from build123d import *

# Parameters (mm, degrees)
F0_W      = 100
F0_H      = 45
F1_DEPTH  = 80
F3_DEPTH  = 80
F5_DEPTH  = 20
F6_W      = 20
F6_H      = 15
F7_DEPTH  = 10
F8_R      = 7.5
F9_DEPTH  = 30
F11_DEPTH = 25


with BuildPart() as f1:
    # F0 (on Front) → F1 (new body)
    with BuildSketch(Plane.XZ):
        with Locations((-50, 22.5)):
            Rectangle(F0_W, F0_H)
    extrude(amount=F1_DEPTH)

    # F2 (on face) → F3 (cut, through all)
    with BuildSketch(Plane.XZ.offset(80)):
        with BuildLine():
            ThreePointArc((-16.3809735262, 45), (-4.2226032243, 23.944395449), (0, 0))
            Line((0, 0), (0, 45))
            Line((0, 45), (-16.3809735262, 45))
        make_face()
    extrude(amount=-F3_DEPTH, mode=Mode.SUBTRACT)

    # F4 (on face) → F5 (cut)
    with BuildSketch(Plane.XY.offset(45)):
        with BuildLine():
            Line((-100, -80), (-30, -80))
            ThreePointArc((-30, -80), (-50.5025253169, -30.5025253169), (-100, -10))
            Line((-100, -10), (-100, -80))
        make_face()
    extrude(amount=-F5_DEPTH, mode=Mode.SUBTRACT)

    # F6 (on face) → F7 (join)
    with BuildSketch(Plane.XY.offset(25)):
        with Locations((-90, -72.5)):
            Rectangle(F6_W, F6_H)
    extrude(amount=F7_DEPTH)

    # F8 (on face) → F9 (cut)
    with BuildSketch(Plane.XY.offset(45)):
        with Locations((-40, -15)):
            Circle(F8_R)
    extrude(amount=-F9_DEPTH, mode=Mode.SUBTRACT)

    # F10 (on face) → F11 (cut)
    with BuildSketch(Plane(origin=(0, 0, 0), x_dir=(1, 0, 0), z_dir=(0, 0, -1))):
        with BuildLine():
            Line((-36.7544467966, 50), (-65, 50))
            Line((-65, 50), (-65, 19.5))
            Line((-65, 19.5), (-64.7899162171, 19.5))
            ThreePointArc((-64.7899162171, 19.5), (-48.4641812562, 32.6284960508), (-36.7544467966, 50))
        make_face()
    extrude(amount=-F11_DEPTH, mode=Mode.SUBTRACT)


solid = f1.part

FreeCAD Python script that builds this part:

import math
import FreeCAD as App
import Part
import Sketcher
from FreeCAD import Vector

doc = App.newDocument("Part")
params = doc.addObject("Spreadsheet::Sheet", "Params")
for row, (alias, value) in enumerate([
    ("sketch1_width", "100 mm"),
    ("sketch1_height", "45 mm"),
    ("pad1_length", "80 mm"),
    ("sketch2_radius", "70 mm"),
    ("sketch2_height", "45 mm"),
    ("sketch3_radius", "70 mm"),
    ("pocket2_length", "20 mm"),
    ("sketch4_width", "20 mm"),
    ("sketch4_height", "15 mm"),
    ("pad2_length", "10 mm"),
    ("sketch5_diameter", "15 mm"),
    ("pocket3_length", "30 mm"),
    ("sketch6_radius", "70 mm"),
    ("sketch6_height", "30.5 mm"),
    ("pocket4_length", "25 mm"),
], start=1):
    params.set(f"A{row}", alias)
    params.set(f"B{row}", "=" + value)
    params.setAlias(f"B{row}", alias)

body = doc.addObject("PartDesign::Body", "Body")

sketch1 = body.newObject("Sketcher::SketchObject", "Sketch")
sketch1.AttachmentSupport = (doc.getObject("XZ_Plane"), [""])
sketch1.MapMode = "FlatFace"
sketch1.addGeometry(Part.LineSegment(Vector(-100, 45, 0), Vector(-100, 0, 0)), False)
sketch1.addGeometry(Part.LineSegment(Vector(-100, 0, 0), Vector(0, 0, 0)), False)
sketch1.addGeometry(Part.LineSegment(Vector(0, 0, 0), Vector(0, 45, 0)), False)
sketch1.addGeometry(Part.LineSegment(Vector(0, 45, 0), Vector(-100, 45, 0)), False)
sketch1.addConstraint(Sketcher.Constraint("Coincident", 0, 2, 1, 1))
sketch1.addConstraint(Sketcher.Constraint("Coincident", 1, 2, 2, 1))
sketch1.addConstraint(Sketcher.Constraint("Coincident", 2, 2, 3, 1))
sketch1.addConstraint(Sketcher.Constraint("Coincident", 3, 2, 0, 1))
sketch1.addConstraint(Sketcher.Constraint("Vertical", 0))
sketch1.addConstraint(Sketcher.Constraint("Horizontal", 1))
sketch1.addConstraint(Sketcher.Constraint("Vertical", 2))
sketch1.addConstraint(Sketcher.Constraint("Horizontal", 3))
sketch1.addConstraint(Sketcher.Constraint("Coincident", 1, 2, -1, 1))
sketch1.addConstraint(Sketcher.Constraint("DistanceX", 1, 1, 1, 2, 100.0))
sketch1.addConstraint(Sketcher.Constraint("DistanceY", 0, 2, 0, 1, 45.0))
sketch1.setExpression("Constraints[9]", "Params.sketch1_width")
sketch1.setExpression("Constraints[10]", "Params.sketch1_height")
pad1 = body.newObject("PartDesign::Pad", "Pad")
pad1.Profile = sketch1
pad1.setExpression("Length", "Params.pad1_length")

sketch2 = body.newObject("Sketcher::SketchObject", "Sketch001")
sketch2.AttachmentSupport = (doc.getObject("XZ_Plane"), [""])
sketch2.MapMode = "FlatFace"
sketch2.AttachmentOffset = App.Placement(Vector(0, 0, 80), App.Rotation())
sketch2.addGeometry(Part.ArcOfCircle(Part.Circle(Vector(-70, 0, 0), Vector(0, 0, 1), 70), math.radians(0), math.radians(40)), False)
sketch2.addGeometry(Part.LineSegment(Vector(0, 0, 0), Vector(0, 45, 0)), False)
sketch2.addGeometry(Part.LineSegment(Vector(0, 45, 0), Vector(-16, 45, 0)), False)
sketch2.addConstraint(Sketcher.Constraint("Tangent", 0, 1, 1, 1))
sketch2.addConstraint(Sketcher.Constraint("Coincident", 1, 2, 2, 1))
sketch2.addConstraint(Sketcher.Constraint("Coincident", 2, 2, 0, 2))
sketch2.addConstraint(Sketcher.Constraint("Vertical", 1))
sketch2.addConstraint(Sketcher.Constraint("Horizontal", 2))
sketch2.addConstraint(Sketcher.Constraint("Coincident", 0, 1, -1, 1))
sketch2.addConstraint(Sketcher.Constraint("Radius", 0, 70.0))
sketch2.addConstraint(Sketcher.Constraint("DistanceY", 1, 1, 1, 2, 45.0))
sketch2.setExpression("Constraints[6]", "Params.sketch2_radius")
sketch2.setExpression("Constraints[7]", "Params.sketch2_height")
pocket1 = body.newObject("PartDesign::Pocket", "Pocket")
pocket1.Profile = sketch2
pocket1.Type = "ThroughAll"

sketch3 = body.newObject("Sketcher::SketchObject", "Sketch002")
sketch3.AttachmentSupport = (doc.getObject("XY_Plane"), [""])
sketch3.MapMode = "FlatFace"
sketch3.AttachmentOffset = App.Placement(Vector(0, 0, 45), App.Rotation())
sketch3.addGeometry(Part.LineSegment(Vector(-100, -80, 0), Vector(-30, -80, 0)), False)
sketch3.addGeometry(Part.ArcOfCircle(Part.Circle(Vector(-100, -80, 0), Vector(0, 0, 1), 70), math.radians(0), math.radians(90)), False)
sketch3.addGeometry(Part.LineSegment(Vector(-100, -10, 0), Vector(-100, -80, 0)), False)
sketch3.addConstraint(Sketcher.Constraint("Coincident", 0, 2, 1, 1))
sketch3.addConstraint(Sketcher.Constraint("Coincident", 1, 2, 2, 1))
sketch3.addConstraint(Sketcher.Constraint("Coincident", 2, 2, 0, 1))
sketch3.addConstraint(Sketcher.Constraint("Horizontal", 0))
sketch3.addConstraint(Sketcher.Constraint("Vertical", 2))
sketch3.addConstraint(Sketcher.Constraint("Coincident", 2, 2, 1, 3))
sketch3.addConstraint(Sketcher.Constraint("Radius", 1, 70.0))
sketch3.addConstraint(Sketcher.Constraint("DistanceX", 1, 3, -1, 1, 100.0))
sketch3.addConstraint(Sketcher.Constraint("DistanceY", 1, 3, -1, 1, 80.0))
sketch3.setExpression("Constraints[6]", "Params.sketch3_radius")
pocket2 = body.newObject("PartDesign::Pocket", "Pocket001")
pocket2.Profile = sketch3
pocket2.setExpression("Length", "Params.pocket2_length")

sketch4 = body.newObject("Sketcher::SketchObject", "Sketch003")
sketch4.AttachmentSupport = (doc.getObject("XY_Plane"), [""])
sketch4.MapMode = "FlatFace"
sketch4.AttachmentOffset = App.Placement(Vector(0, 0, 25), App.Rotation())
sketch4.addGeometry(Part.LineSegment(Vector(-100, -65, 0), Vector(-100, -80, 0)), False)
sketch4.addGeometry(Part.LineSegment(Vector(-100, -80, 0), Vector(-80, -80, 0)), False)
sketch4.addGeometry(Part.LineSegment(Vector(-80, -80, 0), Vector(-80, -65, 0)), False)
sketch4.addGeometry(Part.LineSegment(Vector(-80, -65, 0), Vector(-100, -65, 0)), False)
sketch4.addConstraint(Sketcher.Constraint("Coincident", 0, 2, 1, 1))
sketch4.addConstraint(Sketcher.Constraint("Coincident", 1, 2, 2, 1))
sketch4.addConstraint(Sketcher.Constraint("Coincident", 2, 2, 3, 1))
sketch4.addConstraint(Sketcher.Constraint("Coincident", 3, 2, 0, 1))
sketch4.addConstraint(Sketcher.Constraint("Vertical", 0))
sketch4.addConstraint(Sketcher.Constraint("Horizontal", 1))
sketch4.addConstraint(Sketcher.Constraint("Vertical", 2))
sketch4.addConstraint(Sketcher.Constraint("Horizontal", 3))
sketch4.addConstraint(Sketcher.Constraint("DistanceX", 1, 1, 1, 2, 20.0))
sketch4.addConstraint(Sketcher.Constraint("DistanceY", 0, 2, 0, 1, 15.0))
sketch4.addConstraint(Sketcher.Constraint("DistanceX", 0, 2, -1, 1, 100.0))
sketch4.addConstraint(Sketcher.Constraint("DistanceY", 0, 2, -1, 1, 80.0))
sketch4.setExpression("Constraints[8]", "Params.sketch4_width")
sketch4.setExpression("Constraints[9]", "Params.sketch4_height")
pad2 = body.newObject("PartDesign::Pad", "Pad001")
pad2.Profile = sketch4
pad2.setExpression("Length", "Params.pad2_length")

sketch5 = body.newObject("Sketcher::SketchObject", "Sketch004")
sketch5.AttachmentSupport = (doc.getObject("XY_Plane"), [""])
sketch5.MapMode = "FlatFace"
sketch5.AttachmentOffset = App.Placement(Vector(0, 0, 45), App.Rotation())
sketch5.addGeometry(Part.Circle(Vector(-40, -15, 0), Vector(0, 0, 1), 8), False)
sketch5.addConstraint(Sketcher.Constraint("Diameter", 0, 15.0))
sketch5.addConstraint(Sketcher.Constraint("DistanceX", 0, 3, -1, 1, 40.0))
sketch5.addConstraint(Sketcher.Constraint("DistanceY", 0, 3, -1, 1, 15.0))
sketch5.setExpression("Constraints[0]", "Params.sketch5_diameter")
pocket3 = body.newObject("PartDesign::Pocket", "Pocket002")
pocket3.Profile = sketch5
pocket3.setExpression("Length", "Params.pocket3_length")

sketch6 = body.newObject("Sketcher::SketchObject", "Sketch005")
sketch6.AttachmentSupport = (doc.getObject("XY_Plane"), [""])
sketch6.MapMode = "FlatFace"
sketch6.addGeometry(Part.LineSegment(Vector(-36.75, -50, 0), Vector(-65, -50, 0)), False)
sketch6.addGeometry(Part.LineSegment(Vector(-65, -50, 0), Vector(-65, -19.5, 0)), False)
sketch6.addGeometry(Part.LineSegment(Vector(-65, -19.5, 0), Vector(-64.79, -19.5, 0)), False)
sketch6.addGeometry(Part.ArcOfCircle(Part.Circle(Vector(-100, -80, 0), Vector(0, 0, 1), 70), math.radians(25), math.radians(60)), False)
sketch6.addConstraint(Sketcher.Constraint("Coincident", 0, 2, 1, 1))
sketch6.addConstraint(Sketcher.Constraint("Coincident", 1, 2, 2, 1))
sketch6.addConstraint(Sketcher.Constraint("Coincident", 2, 2, 3, 2))
sketch6.addConstraint(Sketcher.Constraint("Coincident", 3, 1, 0, 1))
sketch6.addConstraint(Sketcher.Constraint("Horizontal", 0))
sketch6.addConstraint(Sketcher.Constraint("Vertical", 1))
sketch6.addConstraint(Sketcher.Constraint("Horizontal", 2))
sketch6.addConstraint(Sketcher.Constraint("Radius", 3, 70.0))
sketch6.addConstraint(Sketcher.Constraint("DistanceY", 1, 1, 1, 2, 30.5))
sketch6.addConstraint(Sketcher.Constraint("DistanceX", 3, 3, -1, 1, 100.0))
sketch6.addConstraint(Sketcher.Constraint("DistanceY", 3, 3, -1, 1, 80.0))
sketch6.addConstraint(Sketcher.Constraint("DistanceX", 0, 2, -1, 1, 65.0))
sketch6.addConstraint(Sketcher.Constraint("DistanceY", 0, 2, -1, 1, 50.0))
sketch6.setExpression("Constraints[7]", "Params.sketch6_radius")
sketch6.setExpression("Constraints[8]", "Params.sketch6_height")
pocket4 = body.newObject("PartDesign::Pocket", "Pocket003")
pocket4.Profile = sketch6
pocket4.setExpression("Length", "Params.pocket4_length")
pocket4.Reversed = True

doc.recompute()
